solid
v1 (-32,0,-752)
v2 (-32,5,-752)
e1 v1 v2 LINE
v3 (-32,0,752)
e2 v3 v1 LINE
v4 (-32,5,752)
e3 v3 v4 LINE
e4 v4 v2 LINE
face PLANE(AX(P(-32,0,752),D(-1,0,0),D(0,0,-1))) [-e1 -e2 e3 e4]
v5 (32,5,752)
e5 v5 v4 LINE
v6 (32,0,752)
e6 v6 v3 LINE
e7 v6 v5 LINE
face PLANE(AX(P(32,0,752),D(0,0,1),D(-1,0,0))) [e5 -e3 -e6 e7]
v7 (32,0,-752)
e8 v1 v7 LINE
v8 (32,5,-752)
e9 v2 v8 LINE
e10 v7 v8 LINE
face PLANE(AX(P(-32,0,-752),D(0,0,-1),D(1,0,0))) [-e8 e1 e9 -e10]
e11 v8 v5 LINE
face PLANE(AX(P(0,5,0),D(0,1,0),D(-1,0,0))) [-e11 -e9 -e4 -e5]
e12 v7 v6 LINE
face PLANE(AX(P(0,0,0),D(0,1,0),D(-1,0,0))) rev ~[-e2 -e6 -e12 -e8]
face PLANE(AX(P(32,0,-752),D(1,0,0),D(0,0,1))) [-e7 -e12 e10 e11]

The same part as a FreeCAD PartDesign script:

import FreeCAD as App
import Part
import Sketcher
Q = App.Units.Quantity

doc = App.newDocument("Part")
body = doc.addObject("PartDesign::Body", "Body")

sketch1 = doc.addObject("Sketcher::SketchObject", "Sketch")
body.addObject(sketch1)
sketch1.AttachmentSupport = (doc.XZ_Plane, [""])
sketch1.MapMode = "FlatFace"
sketch1.addGeometry(Part.LineSegment(App.Vector(-32, 752, 0), App.Vector(32, 752, 0)), False)
sketch1.addGeometry(Part.LineSegment(App.Vector(32, 752, 0), App.Vector(32, -752, 0)), False)
sketch1.addGeometry(Part.LineSegment(App.Vector(32, -752, 0), App.Vector(-32, -752, 0)), False)
sketch1.addGeometry(Part.LineSegment(App.Vector(-32, -752, 0), App.Vector(-32, 752, 0)), False)
sketch1.addConstraint(Sketcher.Constraint("Coincident", 0, 2, 1, 1))
sketch1.addConstraint(Sketcher.Constraint("Coincident", 1, 2, 2, 1))
sketch1.addConstraint(Sketcher.Constraint("Coincident", 2, 2, 3, 1))
sketch1.addConstraint(Sketcher.Constraint("Coincident", 3, 2, 0, 1))
sketch1.addConstraint(Sketcher.Constraint("Horizontal", 0))
sketch1.addConstraint(Sketcher.Constraint("Vertical", 1))
sketch1.addConstraint(Sketcher.Constraint("Horizontal", 2))
sketch1.addConstraint(Sketcher.Constraint("Vertical", 3))
sketch1.addConstraint(Sketcher.Constraint("Symmetric", 0, 2, 2, 2, -1, 1))
sketch1.addConstraint(Sketcher.Constraint("DistanceX", 0, 1, 0, 2, Q("64 mm")))
sketch1.addConstraint(Sketcher.Constraint("DistanceY", 1, 2, 1, 1, Q("1504 mm")))
pad1 = doc.addObject("PartDesign::Pad", "Pad")
body.addObject(pad1)
pad1.Profile = sketch1
pad1.Length = 5
pad1.Reversed = True

doc.recompute()
